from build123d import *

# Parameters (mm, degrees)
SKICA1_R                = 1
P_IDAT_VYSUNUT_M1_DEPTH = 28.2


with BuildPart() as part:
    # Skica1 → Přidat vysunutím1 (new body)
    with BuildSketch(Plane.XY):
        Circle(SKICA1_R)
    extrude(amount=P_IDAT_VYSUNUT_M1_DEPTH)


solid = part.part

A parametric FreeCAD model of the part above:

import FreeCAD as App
import Part
import Sketcher
from FreeCAD import Vector

doc = App.newDocument("Part")
body = doc.addObject("PartDesign::Body", "Body")

sketch1 = doc.addObject("Sketcher::SketchObject", "Sketch")
body.addObject(sketch1)
sketch1.AttachmentSupport = (doc.XY_Plane, [""])
sketch1.MapMode = "FlatFace"
sketch1.addGeometry(Part.Circle(Vector(0, 0, 0), Vector(0, 0, 1), 1), False)
sketch1.addConstraint([
    Sketcher.Constraint("Coincident", 0, 3, -1, 1),
    Sketcher.Constraint("Diameter", 0, 2.0),
])
pad1 = doc.addObject("PartDesign::Pad", "Pad")
body.addObject(pad1)
pad1.Profile = sketch1
pad1.Length = 28.2

doc.recompute()
